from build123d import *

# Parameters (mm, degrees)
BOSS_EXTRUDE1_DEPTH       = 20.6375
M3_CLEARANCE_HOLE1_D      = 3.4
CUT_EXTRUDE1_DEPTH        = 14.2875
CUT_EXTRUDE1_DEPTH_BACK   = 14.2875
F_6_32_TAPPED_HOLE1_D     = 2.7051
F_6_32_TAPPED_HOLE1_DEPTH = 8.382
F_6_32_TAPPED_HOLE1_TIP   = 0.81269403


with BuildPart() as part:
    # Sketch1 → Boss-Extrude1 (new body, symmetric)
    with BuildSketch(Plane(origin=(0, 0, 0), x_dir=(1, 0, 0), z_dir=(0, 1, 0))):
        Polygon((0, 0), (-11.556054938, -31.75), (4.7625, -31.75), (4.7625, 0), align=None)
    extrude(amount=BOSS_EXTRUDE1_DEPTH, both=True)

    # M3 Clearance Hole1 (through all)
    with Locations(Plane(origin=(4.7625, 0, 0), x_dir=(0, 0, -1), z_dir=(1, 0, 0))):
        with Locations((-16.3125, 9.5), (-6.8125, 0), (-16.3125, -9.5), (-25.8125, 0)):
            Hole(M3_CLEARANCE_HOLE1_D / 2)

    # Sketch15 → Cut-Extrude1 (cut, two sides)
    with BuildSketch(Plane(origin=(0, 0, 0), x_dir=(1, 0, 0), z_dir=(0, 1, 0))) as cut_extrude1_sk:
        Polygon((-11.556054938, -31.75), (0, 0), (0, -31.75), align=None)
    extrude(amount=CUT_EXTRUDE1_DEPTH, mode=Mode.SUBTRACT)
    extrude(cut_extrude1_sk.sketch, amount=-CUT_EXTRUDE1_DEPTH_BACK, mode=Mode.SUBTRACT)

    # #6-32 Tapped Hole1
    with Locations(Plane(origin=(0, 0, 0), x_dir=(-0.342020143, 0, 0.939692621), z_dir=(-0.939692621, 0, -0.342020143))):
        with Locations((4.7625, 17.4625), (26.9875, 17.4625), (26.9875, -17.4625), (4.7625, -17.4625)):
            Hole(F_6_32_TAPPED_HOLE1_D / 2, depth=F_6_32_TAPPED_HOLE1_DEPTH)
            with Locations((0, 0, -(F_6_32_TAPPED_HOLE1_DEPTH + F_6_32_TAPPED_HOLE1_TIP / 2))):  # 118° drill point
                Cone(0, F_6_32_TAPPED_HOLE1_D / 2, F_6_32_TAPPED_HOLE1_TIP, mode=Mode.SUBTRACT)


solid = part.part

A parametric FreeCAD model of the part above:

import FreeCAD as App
import Part
import Sketcher

V = App.Vector
Q = App.Units.Quantity

doc = App.newDocument("Part")
body = doc.addObject("PartDesign::Body", "Body")

sketch1 = doc.addObject("Sketcher::SketchObject", "Sketch")
body.addObject(sketch1)
sketch1.AttachmentSupport = (doc.XZ_Plane, [""])
sketch1.MapMode = "FlatFace"
sketch1.addGeometry(Part.LineSegment(V(0, 0, 0), V(-11.556055, 31.75, 0)), False)
sketch1.addGeometry(Part.LineSegment(V(-11.556055, 31.75, 0), V(4.7625, 31.75, 0)), False)
sketch1.addGeometry(Part.LineSegment(V(4.7625, 31.75, 0), V(4.7625, 0, 0)), False)
sketch1.addGeometry(Part.LineSegment(V(4.7625, 0, 0), V(0, 0, 0)), False)
sketch1.addConstraint(Sketcher.Constraint("Coincident", 0, 2, 1, 1))
sketch1.addConstraint(Sketcher.Constraint("Coincident", 1, 2, 2, 1))
sketch1.addConstraint(Sketcher.Constraint("Coincident", 2, 2, 3, 1))
sketch1.addConstraint(Sketcher.Constraint("Coincident", 3, 2, 0, 1))
sketch1.addConstraint(Sketcher.Constraint("Horizontal", 1))
sketch1.addConstraint(Sketcher.Constraint("Vertical", 2))
sketch1.addConstraint(Sketcher.Constraint("Horizontal", 3))
sketch1.addConstraint(Sketcher.Constraint("Coincident", 3, 2, -1, 1))
sketch1.addConstraint(Sketcher.Constraint("Angle", 0, Q("110 deg")))
sketch1.addConstraint(Sketcher.Constraint("DistanceY", 2, 2, 2, 1, Q("1.25 in")))
sketch1.addConstraint(Sketcher.Constraint("DistanceX", 3, 2, 3, 1, Q("0.1875 in")))
pad1 = doc.addObject("PartDesign::Pad", "Pad")
body.addObject(pad1)
pad1.Profile = sketch1
pad1.Length = Q("1.625 in")
pad1.Midplane = True

sketch2 = doc.addObject("Sketcher::SketchObject", "Sketch001")
body.addObject(sketch2)
sketch2.AttachmentSupport = (doc.YZ_Plane, [""])
sketch2.MapMode = "FlatFace"
sketch2.AttachmentOffset = App.Placement(V(0, 0, 0.1875 * 25.4), App.Rotation())
sketch2.addGeometry(Part.Circle(V(9.5, 16.3125, 0), V(0, 0, 1), 1.7), False)
sketch2.addGeometry(Part.Circle(V(0, 6.8125, 0), V(0, 0, 1), 1.7), False)
sketch2.addGeometry(Part.Circle(V(-9.5, 16.3125, 0), V(0, 0, 1), 1.7), False)
sketch2.addGeometry(Part.Circle(V(0, 25.8125, 0), V(0, 0, 1), 1.7), False)
sketch2.addConstraint(Sketcher.Constraint("Equal", 0, 1))
sketch2.addConstraint(Sketcher.Constraint("Equal", 1, 2))
sketch2.addConstraint(Sketcher.Constraint("Equal", 2, 3))
sketch2.addConstraint(Sketcher.Constraint("Symmetric", 0, 3, 2, 3, -2))
sketch2.addConstraint(Sketcher.Constraint("PointOnObject", 1, 3, -2))
sketch2.addConstraint(Sketcher.Constraint("PointOnObject", 3, 3, -2))
sketch2.addConstraint(Sketcher.Constraint("Diameter", 0, Q("3.4 mm")))
sketch2.addConstraint(Sketcher.Constraint("DistanceX", -1, 1, 0, 3, Q("9.5 mm")))
sketch2.addConstraint(Sketcher.Constraint("DistanceY", -1, 1, 0, 3, Q("16.3125 mm")))
sketch2.addConstraint(Sketcher.Constraint("DistanceY", -1, 1, 1, 3, Q("6.8125 mm")))
sketch2.addConstraint(Sketcher.Constraint("DistanceY", -1, 1, 3, 3, Q("25.8125 mm")))
doc.recompute()
hole = doc.addObject("PartDesign::Hole", "Hole")
body.addObject(hole)
hole.Profile = sketch2
hole.ThreadType = "None"
hole.Diameter = 3.4
hole.DepthType = "ThroughAll"

sketch3 = doc.addObject("Sketcher::SketchObject", "Sketch002")
body.addObject(sketch3)
sketch3.AttachmentSupport = (doc.XZ_Plane, [""])
sketch3.MapMode = "FlatFace"
sketch3.addGeometry(Part.LineSegment(V(0, 0, 0), V(-11.556055, 31.75, 0)), False)
sketch3.addGeometry(Part.LineSegment(V(-11.556055, 31.75, 0), V(0, 31.75, 0)), False)
sketch3.addGeometry(Part.LineSegment(V(0, 31.75, 0), V(0, 0, 0)), False)
sketch3.addConstraint(Sketcher.Constraint("Coincident", 0, 2, 1, 1))
sketch3.addConstraint(Sketcher.Constraint("Coincident", 1, 2, 2, 1))
sketch3.addConstraint(Sketcher.Constraint("Coincident", 2, 2, 0, 1))
sketch3.addConstraint(Sketcher.Constraint("Horizontal", 1))
sketch3.addConstraint(Sketcher.Constraint("Vertical", 2))
sketch3.addConstraint(Sketcher.Constraint("Coincident", 2, 2, -1, 1))
sketch3.addConstraint(Sketcher.Constraint("Angle", 0, Q("110 deg")))
sketch3.addConstraint(Sketcher.Constraint("DistanceY", 2, 2, 2, 1, Q("1.25 in")))
pocket1 = doc.addObject("PartDesign::Pocket", "Pocket")
body.addObject(pocket1)
pocket1.Profile = sketch3
pocket1.Type = "TwoLengths"
pocket1.Length = Q("0.5625 in")
pocket1.Length2 = Q("0.5625 in")

sketch4 = doc.addObject("Sketcher::SketchObject", "Sketch003")
body.addObject(sketch4)
sketch4.Placement = App.Placement(V(0, 0, 0), App.Rotation(V(-0.342020143, 0, 0.939692621), V(0, 1, 0), V(-0.939692621, 0, -0.342020143), "ZXY"))
sketch4.addGeometry(Part.Circle(V(4.7625, 17.4625, 0), V(0, 0, 1), 1.35255), False)
sketch4.addGeometry(Part.Circle(V(26.9875, 17.4625, 0), V(0, 0, 1), 1.35255), False)
sketch4.addGeometry(Part.Circle(V(26.9875, -17.4625, 0), V(0, 0, 1), 1.35255), False)
sketch4.addGeometry(Part.Circle(V(4.7625, -17.4625, 0), V(0, 0, 1), 1.35255), False)
sketch4.addConstraint(Sketcher.Constraint("Equal", 0, 1))
sketch4.addConstraint(Sketcher.Constraint("Equal", 1, 2))
sketch4.addConstraint(Sketcher.Constraint("Equal", 2, 3))
sketch4.addConstraint(Sketcher.Constraint("Symmetric", 1, 3, 2, 3, -1))
sketch4.addConstraint(Sketcher.Constraint("Symmetric", 0, 3, 3, 3, -1))
sketch4.addConstraint(Sketcher.Constraint("Horizontal", 0, 3, 1, 3))
sketch4.addConstraint(Sketcher.Constraint("Diameter", 0, Q("0.1065 in")))
sketch4.addConstraint(Sketcher.Constraint("DistanceX", -1, 1, 0, 3, Q("0.1875 in")))
sketch4.addConstraint(Sketcher.Constraint("DistanceY", -1, 1, 0, 3, Q("0.6875 in")))
sketch4.addConstraint(Sketcher.Constraint("DistanceX", -1, 1, 1, 3, Q("1.0625 in")))
doc.recompute()
hole2 = doc.addObject("PartDesign::Hole", "Hole001")
body.addObject(hole2)
hole2.Profile = sketch4
hole2.ThreadType = "None"
hole2.Diameter = Q("0.1065 in")
hole2.DepthType = "Dimension"
hole2.Depth = Q("0.33 in")
hole2.DrillPoint = "Angled"
hole2.DrillPointAngle = 118

doc.recompute()
